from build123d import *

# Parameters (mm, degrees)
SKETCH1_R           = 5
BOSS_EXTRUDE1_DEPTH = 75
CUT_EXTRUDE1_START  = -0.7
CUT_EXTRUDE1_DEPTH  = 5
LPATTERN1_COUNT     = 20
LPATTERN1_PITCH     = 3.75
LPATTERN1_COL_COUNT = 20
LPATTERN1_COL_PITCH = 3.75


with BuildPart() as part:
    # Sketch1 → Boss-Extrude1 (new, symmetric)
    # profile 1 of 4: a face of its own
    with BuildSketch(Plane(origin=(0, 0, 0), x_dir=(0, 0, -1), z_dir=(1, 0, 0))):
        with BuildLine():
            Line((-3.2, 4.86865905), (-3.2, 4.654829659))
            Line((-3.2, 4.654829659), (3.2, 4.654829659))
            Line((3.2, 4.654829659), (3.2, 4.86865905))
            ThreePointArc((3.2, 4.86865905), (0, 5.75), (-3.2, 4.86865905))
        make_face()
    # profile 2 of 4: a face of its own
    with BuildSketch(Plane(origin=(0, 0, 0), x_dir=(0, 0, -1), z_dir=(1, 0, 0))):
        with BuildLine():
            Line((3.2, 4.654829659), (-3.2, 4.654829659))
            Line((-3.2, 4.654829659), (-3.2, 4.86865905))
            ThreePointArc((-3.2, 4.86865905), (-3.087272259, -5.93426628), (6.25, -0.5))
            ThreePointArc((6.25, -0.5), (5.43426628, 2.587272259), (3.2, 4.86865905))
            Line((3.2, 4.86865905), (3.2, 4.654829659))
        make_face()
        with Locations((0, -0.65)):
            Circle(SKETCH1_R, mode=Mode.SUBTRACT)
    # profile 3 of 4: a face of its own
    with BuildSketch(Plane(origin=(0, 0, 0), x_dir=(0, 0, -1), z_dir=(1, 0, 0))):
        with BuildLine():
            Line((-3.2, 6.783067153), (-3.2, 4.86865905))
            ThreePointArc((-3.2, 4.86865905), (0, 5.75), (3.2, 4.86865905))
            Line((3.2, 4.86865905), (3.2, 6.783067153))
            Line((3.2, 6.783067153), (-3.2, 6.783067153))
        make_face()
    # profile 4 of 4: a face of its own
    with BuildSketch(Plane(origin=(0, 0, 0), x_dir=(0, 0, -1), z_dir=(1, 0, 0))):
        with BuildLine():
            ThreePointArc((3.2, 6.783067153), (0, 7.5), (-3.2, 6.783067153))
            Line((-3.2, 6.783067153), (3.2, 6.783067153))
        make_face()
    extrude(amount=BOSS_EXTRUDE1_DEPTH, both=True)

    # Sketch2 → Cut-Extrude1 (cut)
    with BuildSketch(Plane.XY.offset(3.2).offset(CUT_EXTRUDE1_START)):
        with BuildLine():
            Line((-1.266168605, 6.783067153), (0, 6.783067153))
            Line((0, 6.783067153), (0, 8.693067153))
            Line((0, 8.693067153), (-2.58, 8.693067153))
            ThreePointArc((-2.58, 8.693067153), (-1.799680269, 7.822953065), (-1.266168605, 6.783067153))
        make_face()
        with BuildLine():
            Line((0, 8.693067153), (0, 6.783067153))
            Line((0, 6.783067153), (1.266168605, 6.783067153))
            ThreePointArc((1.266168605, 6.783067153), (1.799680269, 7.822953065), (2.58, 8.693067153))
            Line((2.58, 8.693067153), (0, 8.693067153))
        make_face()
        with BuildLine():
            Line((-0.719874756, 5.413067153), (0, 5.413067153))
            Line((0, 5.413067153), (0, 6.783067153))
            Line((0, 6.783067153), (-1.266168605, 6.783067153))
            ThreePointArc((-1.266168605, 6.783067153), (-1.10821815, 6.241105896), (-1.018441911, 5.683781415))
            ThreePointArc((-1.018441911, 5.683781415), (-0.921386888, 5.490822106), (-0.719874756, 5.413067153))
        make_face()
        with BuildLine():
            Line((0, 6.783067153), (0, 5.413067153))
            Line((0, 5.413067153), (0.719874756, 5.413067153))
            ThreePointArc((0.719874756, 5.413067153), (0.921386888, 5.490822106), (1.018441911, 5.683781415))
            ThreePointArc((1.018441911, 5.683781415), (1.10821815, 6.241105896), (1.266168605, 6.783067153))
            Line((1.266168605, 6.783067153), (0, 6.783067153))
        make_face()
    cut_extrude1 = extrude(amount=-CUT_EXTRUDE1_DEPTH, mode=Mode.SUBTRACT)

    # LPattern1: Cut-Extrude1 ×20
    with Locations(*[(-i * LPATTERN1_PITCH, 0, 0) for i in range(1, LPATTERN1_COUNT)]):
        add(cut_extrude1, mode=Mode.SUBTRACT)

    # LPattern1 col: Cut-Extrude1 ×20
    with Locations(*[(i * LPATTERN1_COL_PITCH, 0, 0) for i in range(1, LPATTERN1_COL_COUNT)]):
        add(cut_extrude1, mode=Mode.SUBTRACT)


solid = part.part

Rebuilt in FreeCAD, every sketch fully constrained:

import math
import FreeCAD as App
import Part
import Sketcher
from FreeCAD import Vector
Q = App.Units.Quantity

doc = App.newDocument("Part")
body = doc.addObject("PartDesign::Body", "Body")

# Sketch on YZ plane
sketch1 = body.newObject("Sketcher::SketchObject", "Sketch")
sketch1.AttachmentSupport = (doc.getObject("YZ_Plane"), [""])
sketch1.MapMode = "FlatFace"
sketch1.addGeometry(Part.ArcOfCircle(Part.Circle(Vector(-0.5, 0, 0), Vector(0, 0, 1), 6.2), math.radians(31), math.radians(270)), False)
sketch1.addGeometry(Part.ArcOfCircle(Part.Circle(Vector(-0.5, 0, 0), Vector(0, 0, 1), 6.2), math.radians(-90), math.radians(-31)), False)
sketch1.addGeometry(Part.LineSegment(Vector(4.9, -3.2, 0), Vector(6.8, -3.2, 0)), False)
sketch1.addGeometry(Part.ArcOfCircle(Part.Circle(Vector(0, 0, 0), Vector(0, 0, 1), 7.5), math.radians(-25), math.radians(25)), False)
sketch1.addGeometry(Part.LineSegment(Vector(6.8, 3.2, 0), Vector(4.9, 3.2, 0)), False)
sketch1.addGeometry(Part.Circle(Vector(-0.7, 0, 0), Vector(0, 0, 1), 5), False)
sketch1.addConstraint(Sketcher.Constraint("Tangent", 0, 2, 1, 1))
sketch1.addConstraint(Sketcher.Constraint("Coincident", 1, 2, 2, 1))
sketch1.addConstraint(Sketcher.Constraint("Coincident", 2, 2, 3, 1))
sketch1.addConstraint(Sketcher.Constraint("Coincident", 3, 2, 4, 1))
sketch1.addConstraint(Sketcher.Constraint("Coincident", 4, 2, 0, 1))
sketch1.addConstraint(Sketcher.Constraint("Horizontal", 2))
sketch1.addConstraint(Sketcher.Constraint("Horizontal", 4))
sketch1.addConstraint(Sketcher.Constraint("Coincident", 3, 3, -1, 1))
sketch1.addConstraint(Sketcher.Constraint("Equal", 0, 1))
sketch1.addConstraint(Sketcher.Constraint("Symmetric", 1, 2, 4, 2, -1))
sketch1.addConstraint(Sketcher.Constraint("PointOnObject", 5, 3, -1))
sketch1.addConstraint(Sketcher.Constraint("Vertical", 1, 3, 0, 2))
sketch1.addConstraint(Sketcher.Constraint("Diameter", 5, Q("10 mm")))
sketch1.addConstraint(Sketcher.Constraint("Radius", 3, Q("7.5 mm")))
sketch1.addConstraint(Sketcher.Constraint("Radius", 0, Q("6.25 mm")))
sketch1.addConstraint(Sketcher.Constraint("DistanceX", 0, 3, -1, 1, Q("0.5 mm")))
sketch1.addConstraint(Sketcher.Constraint("DistanceY", 1, 2, -1, 1, Q("3.2 mm")))
sketch1.addConstraint(Sketcher.Constraint("DistanceX", 5, 3, -1, 1, Q("0.65 mm")))
pad1 = body.newObject("PartDesign::Pad", "Pad")
pad1.Profile = sketch1
pad1.Length = 150
pad1.Midplane = True

# Sketch on XY plane
sketch2 = body.newObject("Sketcher::SketchObject", "Sketch001")
sketch2.AttachmentSupport = (doc.getObject("XY_Plane"), [""])
sketch2.MapMode = "FlatFace"
sketch2.AttachmentOffset = App.Placement(Vector(0, 0, 2.5), App.Rotation())
sketch2.addGeometry(Part.ArcOfCircle(Part.Circle(Vector(5.56, 5.24, 0), Vector(0, 0, 1), 4.56), math.radians(131), math.radians(160)), False)
sketch2.addGeometry(Part.LineSegment(Vector(2.58, 8.69, 0), Vector(-2.58, 8.69, 0)), False)
sketch2.addGeometry(Part.ArcOfCircle(Part.Circle(Vector(-5.56, 5.24, 0), Vector(0, 0, 1), 4.56), math.radians(20), math.radians(49)), False)
sketch2.addGeometry(Part.ArcOfCircle(Part.Circle(Vector(-5.56, 5.24, 0), Vector(0, 0, 1), 4.56), math.radians(5.6), math.radians(19.8)), False)
sketch2.addGeometry(Part.ArcOfCircle(Part.Circle(Vector(-0.72, 5.71, 0), Vector(0, 0, 1), 0.3), math.radians(-174), math.radians(-90)), False)
sketch2.addGeometry(Part.LineSegment(Vector(-0.72, 5.41, 0), Vector(0.72, 5.41, 0)), False)
sketch2.addGeometry(Part.ArcOfCircle(Part.Circle(Vector(0.72, 5.71, 0), Vector(0, 0, 1), 0.3), math.radians(-90), math.radians(-6)), False)
sketch2.addGeometry(Part.ArcOfCircle(Part.Circle(Vector(5.56, 5.24, 0), Vector(0, 0, 1), 4.56), math.radians(160.2), math.radians(174.4)), False)
sketch2.addConstraint(Sketcher.Constraint("Coincident", 0, 1, 1, 1))
sketch2.addConstraint(Sketcher.Constraint("Coincident", 1, 2, 2, 2))
sketch2.addConstraint(Sketcher.Constraint("Tangent", 2, 1, 3, 2))
sketch2.addConstraint(Sketcher.Constraint("Tangent", 3, 1, 4, 1))
sketch2.addConstraint(Sketcher.Constraint("Tangent", 4, 2, 5, 1))
sketch2.addConstraint(Sketcher.Constraint("Tangent", 5, 2, 6, 1))
sketch2.addConstraint(Sketcher.Constraint("Tangent", 6, 2, 7, 2))
sketch2.addConstraint(Sketcher.Constraint("Tangent", 7, 1, 0, 2))
sketch2.addConstraint(Sketcher.Constraint("Horizontal", 1))
sketch2.addConstraint(Sketcher.Constraint("Horizontal", 5))
sketch2.addConstraint(Sketcher.Constraint("Equal", 0, 2))
sketch2.addConstraint(Sketcher.Constraint("Equal", 2, 3))
sketch2.addConstraint(Sketcher.Constraint("Equal", 4, 6))
sketch2.addConstraint(Sketcher.Constraint("Equal", 3, 7))
sketch2.addConstraint(Sketcher.Constraint("Symmetric", 0, 3, 2, 3, -2))
sketch2.addConstraint(Sketcher.Constraint("Horizontal", 2, 1, 7, 1))
sketch2.addConstraint(Sketcher.Constraint("Radius", 4, Q("0.3 mm")))
sketch2.addConstraint(Sketcher.Constraint("Radius", 0, Q("4.56 mm")))
sketch2.addConstraint(Sketcher.Constraint("DistanceX", 1, 2, 1, 1, Q("5.16 mm")))
sketch2.addConstraint(Sketcher.Constraint("DistanceY", 6, 3, 0, 1, Q("2.98 mm")))
sketch2.addConstraint(Sketcher.Constraint("DistanceY", 4, 3, 2, 1, Q("1.07 mm")))
sketch2.addConstraint(Sketcher.Constraint("DistanceX", 5, 1, 5, 2, Q("1.43975 mm")))
sketch2.addConstraint(Sketcher.Constraint("DistanceY", -1, 1, 0, 3, Q("5.238638 mm")))
pocket1 = body.newObject("PartDesign::Pocket", "Pocket")
pocket1.Profile = sketch2
pocket1.Length = 5
doc.recompute()

linearpattern = body.newObject("PartDesign::LinearPattern", "LinearPattern")
linearpattern.Originals = [pocket1]
linearpattern.Direction = (doc.getObject("X_Axis"), [""])
linearpattern.Mode = "offset"
linearpattern.Offset = 3.75
linearpattern.Occurrences = 20
linearpattern.Reversed = True
body.Tip = linearpattern
doc.recompute()

linearpattern2 = body.newObject("PartDesign::LinearPattern", "LinearPattern001")
linearpattern2.Originals = [pocket1]
linearpattern2.Direction = (doc.getObject("X_Axis"), [""])
linearpattern2.Mode = "offset"
linearpattern2.Offset = 3.75
linearpattern2.Occurrences = 20
body.Tip = linearpattern2

doc.recompute()
